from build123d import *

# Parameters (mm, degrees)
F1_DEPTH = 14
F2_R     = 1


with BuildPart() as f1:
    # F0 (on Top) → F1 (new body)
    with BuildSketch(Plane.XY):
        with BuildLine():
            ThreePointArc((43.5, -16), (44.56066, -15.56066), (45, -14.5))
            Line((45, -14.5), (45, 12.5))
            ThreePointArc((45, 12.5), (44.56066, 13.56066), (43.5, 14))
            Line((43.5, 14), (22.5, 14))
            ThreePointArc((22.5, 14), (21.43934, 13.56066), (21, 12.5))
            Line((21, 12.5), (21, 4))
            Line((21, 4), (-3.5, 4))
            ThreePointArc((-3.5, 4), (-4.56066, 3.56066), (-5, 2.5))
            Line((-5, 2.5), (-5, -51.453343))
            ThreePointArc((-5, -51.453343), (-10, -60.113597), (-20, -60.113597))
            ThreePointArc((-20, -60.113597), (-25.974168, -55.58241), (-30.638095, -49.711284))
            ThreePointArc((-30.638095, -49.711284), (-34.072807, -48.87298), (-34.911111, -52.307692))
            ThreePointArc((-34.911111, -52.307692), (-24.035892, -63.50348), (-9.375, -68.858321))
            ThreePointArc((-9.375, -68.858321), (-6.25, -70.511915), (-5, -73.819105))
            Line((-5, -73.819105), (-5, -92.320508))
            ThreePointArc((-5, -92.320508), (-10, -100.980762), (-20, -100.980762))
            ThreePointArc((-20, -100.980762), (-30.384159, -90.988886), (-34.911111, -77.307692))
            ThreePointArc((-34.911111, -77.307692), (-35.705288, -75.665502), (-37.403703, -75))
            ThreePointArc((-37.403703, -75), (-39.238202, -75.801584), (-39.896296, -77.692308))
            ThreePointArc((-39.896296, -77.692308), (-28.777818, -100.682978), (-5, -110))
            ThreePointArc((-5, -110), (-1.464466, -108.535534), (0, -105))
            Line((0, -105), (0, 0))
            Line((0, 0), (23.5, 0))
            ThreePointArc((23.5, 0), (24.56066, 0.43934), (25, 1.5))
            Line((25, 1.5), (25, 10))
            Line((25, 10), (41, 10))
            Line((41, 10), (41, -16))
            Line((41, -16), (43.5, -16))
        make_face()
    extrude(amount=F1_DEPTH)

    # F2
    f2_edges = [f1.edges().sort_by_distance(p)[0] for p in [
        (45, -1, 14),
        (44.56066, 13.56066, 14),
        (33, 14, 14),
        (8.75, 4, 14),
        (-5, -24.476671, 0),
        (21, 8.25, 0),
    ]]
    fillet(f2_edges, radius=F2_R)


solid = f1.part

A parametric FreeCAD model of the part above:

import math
import FreeCAD as App
import Part
import Sketcher


def edges_at(feature, points):
    """Names of the edges that pass closest to the given points."""
    edges = feature.Shape.Edges
    near = lambda p: min(range(len(edges)), key=lambda i: edges[i].distToShape(Part.Vertex(*p))[0])
    return sorted({f"Edge{near(p) + 1}" for p in points})

doc = App.newDocument("Part")
body = doc.addObject("PartDesign::Body", "Body")

sketch1 = body.newObject("Sketcher::SketchObject", "Sketch")
sketch1.AttachmentSupport = (doc.getObject("XY_Plane"), [""])
sketch1.MapMode = "FlatFace"
sketch1.addGeometry([
    Part.ArcOfCircle(Part.Circle(App.Vector(43.5, -14.5, 0), App.Vector(0, 0, 1), 1.5), math.radians(-90), math.radians(0)),
    Part.LineSegment(App.Vector(45, -14.5, 0), App.Vector(45, 12.5, 0)),
    Part.ArcOfCircle(Part.Circle(App.Vector(43.5, 12.5, 0), App.Vector(0, 0, 1), 1.5), math.radians(0), math.radians(90)),
    Part.LineSegment(App.Vector(43.5, 14, 0), App.Vector(22.5, 14, 0)),
    Part.ArcOfCircle(Part.Circle(App.Vector(22.5, 12.5, 0), App.Vector(0, 0, 1), 1.5), math.radians(90), math.radians(180)),
    Part.LineSegment(App.Vector(21, 12.5, 0), App.Vector(21, 4, 0)),
    Part.LineSegment(App.Vector(21, 4, 0), App.Vector(-3.5, 4, 0)),
    Part.ArcOfCircle(Part.Circle(App.Vector(-3.5, 2.5, 0), App.Vector(0, 0, 1), 1.5), math.radians(90), math.radians(180)),
    Part.LineSegment(App.Vector(-5, 2.5, 0), App.Vector(-5, -51.5, 0)),
    Part.ArcOfCircle(Part.Circle(App.Vector(-15, -51.5, 0), App.Vector(0, 0, 1), 10), math.radians(-120), math.radians(0)),
    Part.ArcOfCircle(Part.Circle(App.Vector(-5, -34.1, 0), App.Vector(0, 0, 1), 30), math.radians(-149), math.radians(-120)),
    Part.ArcOfCircle(Part.Circle(App.Vector(-32.8, -51, 0), App.Vector(0, 0, 1), 2.5), math.radians(31), math.radians(211)),
    Part.ArcOfCircle(Part.Circle(App.Vector(-5, -34.1, 0), App.Vector(0, 0, 1), 35), math.radians(-149), math.radians(-97)),
    Part.ArcOfCircle(Part.Circle(App.Vector(-10, -73.8, 0), App.Vector(0, 0, 1), 5), math.radians(0), math.radians(83)),
    Part.LineSegment(App.Vector(-5, -73.8, 0), App.Vector(-5, -92.3, 0)),
    Part.ArcOfCircle(Part.Circle(App.Vector(-15, -92.3, 0), App.Vector(0, 0, 1), 10), math.radians(-120), math.radians(0)),
    Part.ArcOfCircle(Part.Circle(App.Vector(-5, -75, 0), App.Vector(0, 0, 1), 30), math.radians(-176), math.radians(-120)),
    Part.ArcOfCircle(Part.Circle(App.Vector(-37.4, -77.5, 0), App.Vector(0, 0, 1), 2.5), math.radians(4), math.radians(90)),
    Part.ArcOfCircle(Part.Circle(App.Vector(-37.4, -77.5, 0), App.Vector(0, 0, 1), 2.5), math.radians(90), math.radians(184)),
    Part.ArcOfCircle(Part.Circle(App.Vector(-5, -75, 0), App.Vector(0, 0, 1), 35), math.radians(-176), math.radians(-90)),
    Part.ArcOfCircle(Part.Circle(App.Vector(-5, -105, 0), App.Vector(0, 0, 1), 5), math.radians(-90), math.radians(0)),
    Part.LineSegment(App.Vector(0, -105, 0), App.Vector(0, 0, 0)),
    Part.LineSegment(App.Vector(0, 0, 0), App.Vector(23.5, 0, 0)),
    Part.ArcOfCircle(Part.Circle(App.Vector(23.5, 1.5, 0), App.Vector(0, 0, 1), 1.5), math.radians(-90), math.radians(0)),
    Part.LineSegment(App.Vector(25, 1.5, 0), App.Vector(25, 10, 0)),
    Part.LineSegment(App.Vector(25, 10, 0), App.Vector(41, 10, 0)),
    Part.LineSegment(App.Vector(41, 10, 0), App.Vector(41, -16, 0)),
    Part.LineSegment(App.Vector(41, -16, 0), App.Vector(43.5, -16, 0)),
], False)
sketch1.addConstraint([
    Sketcher.Constraint("Tangent", 0, 2, 1, 1),
    Sketcher.Constraint("Tangent", 1, 2, 2, 1),
    Sketcher.Constraint("Tangent", 2, 2, 3, 1),
    Sketcher.Constraint("Tangent", 3, 2, 4, 1),
    Sketcher.Constraint("Tangent", 4, 2, 5, 1),
    Sketcher.Constraint("Coincident", 5, 2, 6, 1),
    Sketcher.Constraint("Tangent", 6, 2, 7, 1),
    Sketcher.Constraint("Tangent", 7, 2, 8, 1),
    Sketcher.Constraint("Tangent", 8, 2, 9, 2),
    Sketcher.Constraint("Tangent", 9, 1, 10, 2),
    Sketcher.Constraint("Tangent", 10, 1, 11, 1),
    Sketcher.Constraint("Tangent", 11, 2, 12, 1),
    Sketcher.Constraint("Tangent", 12, 2, 13, 2),
    Sketcher.Constraint("Tangent", 13, 1, 14, 1),
    Sketcher.Constraint("Tangent", 14, 2, 15, 2),
    Sketcher.Constraint("Tangent", 15, 1, 16, 2),
    Sketcher.Constraint("Tangent", 16, 1, 17, 1),
    Sketcher.Constraint("Tangent", 17, 2, 18, 1),
    Sketcher.Constraint("Tangent", 18, 2, 19, 1),
    Sketcher.Constraint("Tangent", 19, 2, 20, 1),
    Sketcher.Constraint("Tangent", 20, 2, 21, 1),
    Sketcher.Constraint("Coincident", 21, 2, 22, 1),
    Sketcher.Constraint("Tangent", 22, 2, 23, 1),
    Sketcher.Constraint("Tangent", 23, 2, 24, 1),
    Sketcher.Constraint("Coincident", 24, 2, 25, 1),
    Sketcher.Constraint("Coincident", 25, 2, 26, 1),
    Sketcher.Constraint("Coincident", 26, 2, 27, 1),
    Sketcher.Constraint("Tangent", 27, 2, 0, 1),
    Sketcher.Constraint("Vertical", 1),
    Sketcher.Constraint("Horizontal", 3),
    Sketcher.Constraint("Vertical", 5),
    Sketcher.Constraint("Horizontal", 6),
    Sketcher.Constraint("Vertical", 8),
    Sketcher.Constraint("Vertical", 14),
    Sketcher.Constraint("Vertical", 21),
    Sketcher.Constraint("Horizontal", 22),
    Sketcher.Constraint("Vertical", 24),
    Sketcher.Constraint("Horizontal", 25),
    Sketcher.Constraint("Vertical", 26),
    Sketcher.Constraint("Horizontal", 27),
    Sketcher.Constraint("Coincident", 21, 2, -1, 1),
    Sketcher.Constraint("Coincident", 12, 3, 10, 3),
    Sketcher.Constraint("Coincident", 19, 3, 16, 3),
    Sketcher.Constraint("Equal", 0, 2),
    Sketcher.Constraint("Equal", 2, 4),
    Sketcher.Constraint("Equal", 4, 7),
    Sketcher.Constraint("Equal", 9, 15),
    Sketcher.Constraint("Equal", 10, 16),
    Sketcher.Constraint("Equal", 11, 17),
    Sketcher.Constraint("Equal", 17, 18),
    Sketcher.Constraint("Equal", 13, 20),
    Sketcher.Constraint("Equal", 7, 23),
    Sketcher.Constraint("Horizontal", 19, 3, 17, 2),
    Sketcher.Constraint("Vertical", 9, 3, 15, 3),
    Sketcher.Constraint("Vertical", 10, 3, 16, 3),
    Sketcher.Constraint("Vertical", 19, 3, 20, 3),
    Sketcher.Constraint("Vertical", 20, 3, 7, 2),
    Sketcher.Constraint("Vertical", 11, 2, 16, 1),
    Sketcher.Constraint("Vertical", 18, 3, 17, 2),
    Sketcher.Constraint("Equal", 5, 24),
    Sketcher.Constraint("Radius", 9, 10.0),
    Sketcher.Constraint("Radius", 10, 30.0),
    Sketcher.Constraint("Radius", 13, 4.999999),
    Sketcher.Constraint("Radius", 19, 35.0),
    Sketcher.Constraint("Radius", 0, 1.500001),
    Sketcher.Constraint("DistanceX", 3, 2, 3, 1, 21.0),
    Sketcher.Constraint("DistanceX", 25, 1, 25, 2, 16.0),
    Sketcher.Constraint("DistanceY", 1, 1, 1, 2, 27.0),
    Sketcher.Constraint("DistanceY", 21, 1, 21, 2, 105.0),
    Sketcher.Constraint("DistanceY", 26, 2, 26, 1, 26.0),
    Sketcher.Constraint("DistanceX", 6, 2, 6, 1, 24.5),
    Sketcher.Constraint("DistanceX", 22, 1, 22, 2, 23.5),
    Sketcher.Constraint("DistanceY", 5, 2, 5, 1, 8.5),
    Sketcher.Constraint("DistanceY", 16, 1, 11, 2, 25.0),
])
pad1 = body.newObject("PartDesign::Pad", "Pad")
pad1.Profile = sketch1
pad1.Length = 14
doc.recompute()

fillet = body.newObject("PartDesign::Fillet", "Fillet")
fillet.Base = (pad1, edges_at(pad1, [
    (45, -1, 14),
    (44.561, 13.561, 14),
    (33, 14, 14),
    (8.75, 4, 14),
    (-5, -24.477, 0),
    (21, 8.25, 0),
]))
fillet.Radius = 1

doc.recompute()
